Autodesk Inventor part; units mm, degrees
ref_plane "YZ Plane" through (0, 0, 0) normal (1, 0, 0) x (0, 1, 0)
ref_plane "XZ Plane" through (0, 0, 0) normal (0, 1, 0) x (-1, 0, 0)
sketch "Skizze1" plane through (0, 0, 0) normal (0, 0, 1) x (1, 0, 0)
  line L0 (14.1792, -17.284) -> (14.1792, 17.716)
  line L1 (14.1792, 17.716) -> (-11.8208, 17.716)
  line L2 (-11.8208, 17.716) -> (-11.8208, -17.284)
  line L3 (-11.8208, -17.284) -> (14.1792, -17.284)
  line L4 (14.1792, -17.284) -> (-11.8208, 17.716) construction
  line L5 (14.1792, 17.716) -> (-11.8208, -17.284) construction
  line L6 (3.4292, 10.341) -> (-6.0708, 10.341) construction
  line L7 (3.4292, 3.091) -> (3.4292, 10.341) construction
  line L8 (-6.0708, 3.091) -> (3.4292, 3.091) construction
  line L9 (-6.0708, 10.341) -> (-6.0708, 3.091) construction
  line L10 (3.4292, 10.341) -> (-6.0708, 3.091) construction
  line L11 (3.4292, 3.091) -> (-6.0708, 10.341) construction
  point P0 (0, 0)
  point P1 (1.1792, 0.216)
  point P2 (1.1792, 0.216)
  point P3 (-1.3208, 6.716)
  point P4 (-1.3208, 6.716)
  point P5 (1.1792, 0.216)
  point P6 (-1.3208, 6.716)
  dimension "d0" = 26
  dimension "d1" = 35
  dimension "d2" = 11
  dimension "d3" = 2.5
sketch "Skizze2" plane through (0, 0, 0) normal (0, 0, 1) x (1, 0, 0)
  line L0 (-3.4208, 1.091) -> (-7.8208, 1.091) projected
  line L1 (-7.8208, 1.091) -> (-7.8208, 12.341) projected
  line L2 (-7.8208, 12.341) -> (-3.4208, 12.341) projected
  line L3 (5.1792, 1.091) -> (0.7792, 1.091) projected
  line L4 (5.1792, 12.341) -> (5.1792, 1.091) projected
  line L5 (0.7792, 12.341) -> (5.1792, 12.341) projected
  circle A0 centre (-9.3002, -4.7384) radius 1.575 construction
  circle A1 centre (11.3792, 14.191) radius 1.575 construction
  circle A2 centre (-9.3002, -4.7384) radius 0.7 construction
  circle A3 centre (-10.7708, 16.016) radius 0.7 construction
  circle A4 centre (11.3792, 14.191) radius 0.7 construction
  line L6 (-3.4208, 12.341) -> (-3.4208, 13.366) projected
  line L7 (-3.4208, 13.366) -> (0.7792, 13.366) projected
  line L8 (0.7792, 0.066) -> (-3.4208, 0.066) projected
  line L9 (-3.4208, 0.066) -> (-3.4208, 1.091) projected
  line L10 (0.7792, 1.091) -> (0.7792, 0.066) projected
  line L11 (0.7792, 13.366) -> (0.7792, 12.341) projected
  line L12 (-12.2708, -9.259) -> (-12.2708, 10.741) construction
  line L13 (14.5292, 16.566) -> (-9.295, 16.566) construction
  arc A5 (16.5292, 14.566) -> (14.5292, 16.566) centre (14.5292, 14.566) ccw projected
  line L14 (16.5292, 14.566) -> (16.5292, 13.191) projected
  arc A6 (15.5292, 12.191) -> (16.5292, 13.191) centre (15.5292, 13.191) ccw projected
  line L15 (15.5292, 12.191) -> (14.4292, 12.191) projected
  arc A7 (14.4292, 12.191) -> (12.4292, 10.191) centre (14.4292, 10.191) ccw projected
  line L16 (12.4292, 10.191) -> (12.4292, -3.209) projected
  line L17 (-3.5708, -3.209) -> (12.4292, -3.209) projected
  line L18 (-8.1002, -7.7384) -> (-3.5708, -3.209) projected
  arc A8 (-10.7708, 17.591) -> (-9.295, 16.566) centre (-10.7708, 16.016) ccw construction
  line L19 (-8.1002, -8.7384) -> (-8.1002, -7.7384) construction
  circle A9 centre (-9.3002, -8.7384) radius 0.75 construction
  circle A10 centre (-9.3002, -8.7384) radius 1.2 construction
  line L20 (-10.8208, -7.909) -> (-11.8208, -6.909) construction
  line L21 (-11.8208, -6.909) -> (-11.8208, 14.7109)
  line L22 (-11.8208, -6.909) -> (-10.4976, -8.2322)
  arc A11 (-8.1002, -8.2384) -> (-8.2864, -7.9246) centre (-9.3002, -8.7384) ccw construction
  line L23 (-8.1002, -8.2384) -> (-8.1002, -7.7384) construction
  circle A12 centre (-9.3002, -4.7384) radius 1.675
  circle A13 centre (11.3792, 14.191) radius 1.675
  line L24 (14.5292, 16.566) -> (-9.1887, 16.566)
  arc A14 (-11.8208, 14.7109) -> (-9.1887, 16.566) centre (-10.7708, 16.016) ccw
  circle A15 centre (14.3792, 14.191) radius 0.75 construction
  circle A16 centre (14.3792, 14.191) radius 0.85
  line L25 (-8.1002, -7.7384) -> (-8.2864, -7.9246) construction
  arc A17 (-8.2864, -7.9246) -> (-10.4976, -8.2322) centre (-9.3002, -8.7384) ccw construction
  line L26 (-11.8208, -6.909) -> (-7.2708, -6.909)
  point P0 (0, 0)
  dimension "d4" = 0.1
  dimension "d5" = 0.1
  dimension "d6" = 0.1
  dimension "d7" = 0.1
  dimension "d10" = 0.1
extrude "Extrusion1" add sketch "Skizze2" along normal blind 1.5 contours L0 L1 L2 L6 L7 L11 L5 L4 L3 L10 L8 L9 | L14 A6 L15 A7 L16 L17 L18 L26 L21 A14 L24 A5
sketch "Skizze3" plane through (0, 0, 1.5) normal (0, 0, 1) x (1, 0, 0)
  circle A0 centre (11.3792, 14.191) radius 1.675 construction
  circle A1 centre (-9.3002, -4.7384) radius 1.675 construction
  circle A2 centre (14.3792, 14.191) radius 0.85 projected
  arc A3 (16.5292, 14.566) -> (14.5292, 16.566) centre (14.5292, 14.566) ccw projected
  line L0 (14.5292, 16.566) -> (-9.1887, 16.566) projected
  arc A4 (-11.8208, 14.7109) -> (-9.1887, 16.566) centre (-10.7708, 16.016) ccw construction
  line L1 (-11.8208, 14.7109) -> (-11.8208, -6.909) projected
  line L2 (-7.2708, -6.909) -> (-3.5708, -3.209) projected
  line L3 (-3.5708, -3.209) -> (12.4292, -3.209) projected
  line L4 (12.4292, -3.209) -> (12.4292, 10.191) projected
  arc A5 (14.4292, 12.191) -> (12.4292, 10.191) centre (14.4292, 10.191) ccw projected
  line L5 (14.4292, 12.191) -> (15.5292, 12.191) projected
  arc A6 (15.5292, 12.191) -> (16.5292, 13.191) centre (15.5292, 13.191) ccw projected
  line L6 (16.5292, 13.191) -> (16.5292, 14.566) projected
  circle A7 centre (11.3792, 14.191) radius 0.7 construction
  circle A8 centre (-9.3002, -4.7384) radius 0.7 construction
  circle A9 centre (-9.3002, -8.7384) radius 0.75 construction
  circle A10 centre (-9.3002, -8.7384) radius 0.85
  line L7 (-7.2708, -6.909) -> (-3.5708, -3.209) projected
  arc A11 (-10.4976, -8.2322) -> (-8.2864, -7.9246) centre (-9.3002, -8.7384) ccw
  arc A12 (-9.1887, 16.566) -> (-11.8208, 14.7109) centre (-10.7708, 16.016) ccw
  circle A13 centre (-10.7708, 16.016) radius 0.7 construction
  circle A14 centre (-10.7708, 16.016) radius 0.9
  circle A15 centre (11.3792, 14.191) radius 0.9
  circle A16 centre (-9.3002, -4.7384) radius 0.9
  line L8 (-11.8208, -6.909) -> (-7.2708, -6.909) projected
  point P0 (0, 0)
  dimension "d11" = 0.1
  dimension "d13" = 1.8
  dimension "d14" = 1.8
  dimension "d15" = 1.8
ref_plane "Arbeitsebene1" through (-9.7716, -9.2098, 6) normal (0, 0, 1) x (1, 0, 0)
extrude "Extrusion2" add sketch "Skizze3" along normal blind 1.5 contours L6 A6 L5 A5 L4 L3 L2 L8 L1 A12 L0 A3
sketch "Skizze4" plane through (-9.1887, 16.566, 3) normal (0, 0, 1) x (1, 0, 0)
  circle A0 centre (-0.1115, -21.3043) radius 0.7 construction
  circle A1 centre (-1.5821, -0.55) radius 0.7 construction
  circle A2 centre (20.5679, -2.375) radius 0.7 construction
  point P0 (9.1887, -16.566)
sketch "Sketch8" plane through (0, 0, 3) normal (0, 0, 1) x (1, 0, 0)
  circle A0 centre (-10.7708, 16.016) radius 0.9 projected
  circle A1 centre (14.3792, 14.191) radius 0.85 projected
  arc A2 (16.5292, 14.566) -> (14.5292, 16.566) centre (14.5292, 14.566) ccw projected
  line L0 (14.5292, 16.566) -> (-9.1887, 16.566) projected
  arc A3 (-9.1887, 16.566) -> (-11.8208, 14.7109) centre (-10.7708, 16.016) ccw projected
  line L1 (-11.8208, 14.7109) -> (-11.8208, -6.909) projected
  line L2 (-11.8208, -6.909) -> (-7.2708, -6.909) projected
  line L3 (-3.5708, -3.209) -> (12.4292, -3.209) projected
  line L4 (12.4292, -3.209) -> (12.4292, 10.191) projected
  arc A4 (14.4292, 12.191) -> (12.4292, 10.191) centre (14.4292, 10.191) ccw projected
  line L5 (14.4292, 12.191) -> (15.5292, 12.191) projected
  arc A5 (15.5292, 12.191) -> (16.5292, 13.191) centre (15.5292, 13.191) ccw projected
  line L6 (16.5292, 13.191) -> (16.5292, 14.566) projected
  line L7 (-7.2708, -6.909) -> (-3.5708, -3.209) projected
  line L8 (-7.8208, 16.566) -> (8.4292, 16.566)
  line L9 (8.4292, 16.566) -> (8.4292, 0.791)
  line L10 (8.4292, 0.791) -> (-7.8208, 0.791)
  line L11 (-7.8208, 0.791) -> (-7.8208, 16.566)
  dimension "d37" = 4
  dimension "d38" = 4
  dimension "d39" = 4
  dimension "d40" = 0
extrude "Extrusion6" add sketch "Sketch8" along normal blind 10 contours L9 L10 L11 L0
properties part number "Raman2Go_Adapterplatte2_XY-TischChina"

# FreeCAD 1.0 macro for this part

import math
import FreeCAD as App
import Part
import Sketcher
Q = App.Units.Quantity


def add_polygon(sketch, points):
    """Adds a closed chain of lines whose ends are joined by coincident constraints."""
    first, n = sketch.GeometryCount, len(points)
    for a, b in zip(points, points[1:] + points[:1]):
        sketch.addGeometry(Part.LineSegment(App.Vector(*a, 0), App.Vector(*b, 0)), False)
    for i in range(n):
        sketch.addConstraint(Sketcher.Constraint("Coincident", first + i, 2, first + (i + 1) % n, 1))

doc = App.newDocument("Part")
body = doc.addObject("PartDesign::Body", "Body")

sketch1 = body.newObject("Sketcher::SketchObject", "Sketch")
sketch1.AttachmentSupport = (doc.getObject("XY_Plane"), [""])
sketch1.MapMode = "FlatFace"
sketch1.addGeometry([
    Part.LineSegment(App.Vector(16.5, 13.2, 0), App.Vector(16.5, 14.6, 0)),
    Part.ArcOfCircle(Part.Circle(App.Vector(14.5, 14.6, 0), App.Vector(0, 0, 1), 2), math.radians(0), math.radians(90)),
    Part.LineSegment(App.Vector(14.5, 16.6, 0), App.Vector(-9.2, 16.6, 0)),
    Part.ArcOfCircle(Part.Circle(App.Vector(-10.8, 16, 0), App.Vector(0, 0, 1), 1.7), math.radians(-129), math.radians(19)),
    Part.LineSegment(App.Vector(-11.8, 14.7, 0), App.Vector(-11.8, -6.9, 0)),
    Part.LineSegment(App.Vector(-11.8, -6.9, 0), App.Vector(-7.3, -6.9, 0)),
    Part.LineSegment(App.Vector(-7.3, -6.9, 0), App.Vector(-3.6, -3.2, 0)),
    Part.LineSegment(App.Vector(-3.6, -3.2, 0), App.Vector(12.4, -3.2, 0)),
    Part.LineSegment(App.Vector(12.4, -3.2, 0), App.Vector(12.4, 10.2, 0)),
    Part.ArcOfCircle(Part.Circle(App.Vector(14.4, 10.2, 0), App.Vector(0, 0, 1), 2), math.radians(90), math.radians(180)),
    Part.LineSegment(App.Vector(14.4, 12.2, 0), App.Vector(15.5, 12.2, 0)),
    Part.ArcOfCircle(Part.Circle(App.Vector(15.5, 13.2, 0), App.Vector(0, 0, 1), 1), math.radians(-90), math.radians(0)),
    Part.Circle(App.Vector(-9.3, -4.7, 0), App.Vector(0, 0, 1), 1.7),
    Part.Circle(App.Vector(11.4, 14.2, 0), App.Vector(0, 0, 1), 1.7),
    Part.Circle(App.Vector(14.4, 14.2, 0), App.Vector(0, 0, 1), 0.8),
], False)
sketch1.addConstraint([
    Sketcher.Constraint("Tangent", 0, 2, 1, 1),
    Sketcher.Constraint("Tangent", 1, 2, 2, 1),
    Sketcher.Constraint("Coincident", 2, 2, 3, 2),
    Sketcher.Constraint("Coincident", 3, 1, 4, 1),
    Sketcher.Constraint("Coincident", 4, 2, 5, 1),
    Sketcher.Constraint("Coincident", 5, 2, 6, 1),
    Sketcher.Constraint("Coincident", 6, 2, 7, 1),
    Sketcher.Constraint("Coincident", 7, 2, 8, 1),
    Sketcher.Constraint("Tangent", 8, 2, 9, 2),
    Sketcher.Constraint("Tangent", 9, 1, 10, 1),
    Sketcher.Constraint("Tangent", 10, 2, 11, 1),
    Sketcher.Constraint("Tangent", 11, 2, 0, 1),
    Sketcher.Constraint("Vertical", 0),
    Sketcher.Constraint("Horizontal", 2),
    Sketcher.Constraint("Vertical", 4),
    Sketcher.Constraint("Horizontal", 5),
    Sketcher.Constraint("Horizontal", 7),
    Sketcher.Constraint("Vertical", 8),
    Sketcher.Constraint("Horizontal", 10),
    Sketcher.Constraint("Equal", 1, 9),
    Sketcher.Constraint("Equal", 3, 12),
    Sketcher.Constraint("Equal", 12, 13),
    Sketcher.Constraint("Horizontal", 13, 3, 14, 3),
    Sketcher.Constraint("Radius", 1, Q("2 mm")),
    Sketcher.Constraint("Radius", 11, Q("1 mm")),
    Sketcher.Constraint("Diameter", 14, Q("1.7 mm")),
    Sketcher.Constraint("DistanceX", 9, 3, 1, 3, Q("0.1 mm")),
    Sketcher.Constraint("Diameter", 12, Q("3.35 mm")),
    Sketcher.Constraint("DistanceX", 7, 1, 7, 2, Q("16 mm")),
    Sketcher.Constraint("Angle", 6, Q("45 deg")),
    Sketcher.Constraint("DistanceY", 8, 1, 8, 2, Q("13.4 mm")),
    Sketcher.Constraint("DistanceY", 11, 3, 13, 3, Q("1 mm")),
    Sketcher.Constraint("DistanceX", 13, 3, 14, 3, Q("3 mm")),
    Sketcher.Constraint("DistanceX", 5, 1, 5, 2, Q("4.55 mm")),
    Sketcher.Constraint("DistanceY", 4, 2, 4, 1, Q("21.62 mm")),
    Sketcher.Constraint("DistanceX", 3, 3, 1, 3, Q("25.3 mm")),
    Sketcher.Constraint("DistanceX", 3, 1, 13, 3, Q("23.2 mm")),
    Sketcher.Constraint("DistanceY", 4, 2, 9, 3, Q("17.1 mm")),
    Sketcher.Constraint("DistanceX", 2, 2, 2, 1, Q("23.718 mm")),
    Sketcher.Constraint("DistanceY", -1, 1, 1, 3, Q("14.566 mm")),
    Sketcher.Constraint("DistanceX", -1, 1, 1, 3, Q("14.5292 mm")),
    Sketcher.Constraint("DistanceX", 12, 3, -1, 1, Q("9.3002 mm")),
    Sketcher.Constraint("DistanceY", 12, 3, -1, 1, Q("4.7384 mm")),
])
pad1 = body.newObject("PartDesign::Pad", "Pad")
pad1.Profile = sketch1
pad1.Length = 1.5

sketch2 = body.newObject("Sketcher::SketchObject", "Sketch001")
sketch2.AttachmentSupport = (doc.getObject("XY_Plane"), [""])
sketch2.MapMode = "FlatFace"
sketch2.AttachmentOffset = App.Placement(App.Vector(0, 0, 1.5), App.Rotation())
sketch2.addGeometry([
    Part.LineSegment(App.Vector(16.5, 13.2, 0), App.Vector(16.5, 14.6, 0)),
    Part.ArcOfCircle(Part.Circle(App.Vector(14.5, 14.6, 0), App.Vector(0, 0, 1), 2), math.radians(0), math.radians(90)),
    Part.LineSegment(App.Vector(14.5, 16.6, 0), App.Vector(-9.2, 16.6, 0)),
    Part.ArcOfCircle(Part.Circle(App.Vector(-10.8, 16, 0), App.Vector(0, 0, 1), 1.7), math.radians(19), math.radians(231)),
    Part.LineSegment(App.Vector(-11.8, 14.7, 0), App.Vector(-11.8, -6.9, 0)),
    Part.LineSegment(App.Vector(-11.8, -6.9, 0), App.Vector(-7.3, -6.9, 0)),
    Part.LineSegment(App.Vector(-7.3, -6.9, 0), App.Vector(-3.6, -3.2, 0)),
    Part.LineSegment(App.Vector(-3.6, -3.2, 0), App.Vector(12.4, -3.2, 0)),
    Part.LineSegment(App.Vector(12.4, -3.2, 0), App.Vector(12.4, 10.2, 0)),
    Part.ArcOfCircle(Part.Circle(App.Vector(14.4, 10.2, 0), App.Vector(0, 0, 1), 2), math.radians(90), math.radians(180)),
    Part.LineSegment(App.Vector(14.4, 12.2, 0), App.Vector(15.5, 12.2, 0)),
    Part.ArcOfCircle(Part.Circle(App.Vector(15.5, 13.2, 0), App.Vector(0, 0, 1), 1), math.radians(-90), math.radians(0)),
    Part.Circle(App.Vector(-9.3, -4.7, 0), App.Vector(0, 0, 1), 0.9),
    Part.Circle(App.Vector(-10.8, 16, 0), App.Vector(0, 0, 1), 0.9),
    Part.Circle(App.Vector(11.4, 14.2, 0), App.Vector(0, 0, 1), 0.9),
    Part.Circle(App.Vector(14.4, 14.2, 0), App.Vector(0, 0, 1), 0.8),
], False)
sketch2.addConstraint([
    Sketcher.Constraint("Tangent", 0, 2, 1, 1),
    Sketcher.Constraint("Tangent", 1, 2, 2, 1),
    Sketcher.Constraint("Coincident", 2, 2, 3, 1),
    Sketcher.Constraint("Coincident", 3, 2, 4, 1),
    Sketcher.Constraint("Coincident", 4, 2, 5, 1),
    Sketcher.Constraint("Coincident", 5, 2, 6, 1),
    Sketcher.Constraint("Coincident", 6, 2, 7, 1),
    Sketcher.Constraint("Coincident", 7, 2, 8, 1),
    Sketcher.Constraint("Tangent", 8, 2, 9, 2),
    Sketcher.Constraint("Tangent", 9, 1, 10, 1),
    Sketcher.Constraint("Tangent", 10, 2, 11, 1),
    Sketcher.Constraint("Tangent", 11, 2, 0, 1),
    Sketcher.Constraint("Vertical", 0),
    Sketcher.Constraint("Horizontal", 2),
    Sketcher.Constraint("Vertical", 4),
    Sketcher.Constraint("Horizontal", 5),
    Sketcher.Constraint("Horizontal", 7),
    Sketcher.Constraint("Vertical", 8),
    Sketcher.Constraint("Horizontal", 10),
    Sketcher.Constraint("Coincident", 13, 3, 3, 3),
    Sketcher.Constraint("Equal", 1, 9),
    Sketcher.Constraint("Equal", 12, 13),
    Sketcher.Constraint("Equal", 13, 14),
    Sketcher.Constraint("Horizontal", 14, 3, 15, 3),
    Sketcher.Constraint("Diameter", 12, Q("1.8 mm")),
    Sketcher.Constraint("Radius", 1, Q("2 mm")),
    Sketcher.Constraint("Radius", 11, Q("1 mm")),
    Sketcher.Constraint("Diameter", 15, Q("1.7 mm")),
    Sketcher.Constraint("DistanceX", 9, 3, 1, 3, Q("0.1 mm")),
    Sketcher.Constraint("DistanceX", 7, 1, 7, 2, Q("16 mm")),
    Sketcher.Constraint("Angle", 6, Q("45 deg")),
    Sketcher.Constraint("DistanceY", 8, 1, 8, 2, Q("13.4 mm")),
    Sketcher.Constraint("Radius", 3, Q("1.675 mm")),
    Sketcher.Constraint("DistanceY", 11, 3, 14, 3, Q("1 mm")),
    Sketcher.Constraint("DistanceX", 14, 3, 15, 3, Q("3 mm")),
    Sketcher.Constraint("DistanceX", 5, 1, 5, 2, Q("4.55 mm")),
    Sketcher.Constraint("DistanceY", 4, 2, 4, 1, Q("21.62 mm")),
    Sketcher.Constraint("DistanceX", 3, 3, 1, 3, Q("25.3 mm")),
    Sketcher.Constraint("DistanceX", 3, 2, 14, 3, Q("23.2 mm")),
    Sketcher.Constraint("DistanceX", 3, 3, 5, 2, Q("3.5 mm")),
    Sketcher.Constraint("DistanceX", 2, 2, 2, 1, Q("23.718 mm")),
    Sketcher.Constraint("DistanceY", -1, 1, 1, 3, Q("14.566 mm")),
    Sketcher.Constraint("DistanceX", -1, 1, 1, 3, Q("14.5292 mm")),
    Sketcher.Constraint("DistanceX", 12, 3, -1, 1, Q("9.3002 mm")),
    Sketcher.Constraint("DistanceY", 12, 3, -1, 1, Q("4.7384 mm")),
])
pad2 = body.newObject("PartDesign::Pad", "Pad001")
pad2.Profile = sketch2
pad2.Length = 1.5

sketch3 = body.newObject("Sketcher::SketchObject", "Sketch002")
sketch3.AttachmentSupport = (doc.getObject("XY_Plane"), [""])
sketch3.MapMode = "FlatFace"
sketch3.AttachmentOffset = App.Placement(App.Vector(0, 0, 3), App.Rotation())
add_polygon(sketch3, [(8, 1), (8, 17), (-8, 17), (-8, 1)])
sketch3.addConstraint([
    Sketcher.Constraint("Vertical", 0),
    Sketcher.Constraint("Horizontal", 1),
    Sketcher.Constraint("Vertical", 2),
    Sketcher.Constraint("Horizontal", 3),
    Sketcher.Constraint("DistanceX", 1, 2, 1, 1, Q("16.25 mm")),
    Sketcher.Constraint("DistanceY", 0, 1, 0, 2, Q("15.775 mm")),
    Sketcher.Constraint("DistanceY", -1, 1, 0, 2, Q("16.566 mm")),
    Sketcher.Constraint("DistanceX", -1, 1, 0, 2, Q("8.4292 mm")),
])
pad3 = body.newObject("PartDesign::Pad", "Pad002")
pad3.Profile = sketch3
pad3.Length = 10

doc.recompute()
